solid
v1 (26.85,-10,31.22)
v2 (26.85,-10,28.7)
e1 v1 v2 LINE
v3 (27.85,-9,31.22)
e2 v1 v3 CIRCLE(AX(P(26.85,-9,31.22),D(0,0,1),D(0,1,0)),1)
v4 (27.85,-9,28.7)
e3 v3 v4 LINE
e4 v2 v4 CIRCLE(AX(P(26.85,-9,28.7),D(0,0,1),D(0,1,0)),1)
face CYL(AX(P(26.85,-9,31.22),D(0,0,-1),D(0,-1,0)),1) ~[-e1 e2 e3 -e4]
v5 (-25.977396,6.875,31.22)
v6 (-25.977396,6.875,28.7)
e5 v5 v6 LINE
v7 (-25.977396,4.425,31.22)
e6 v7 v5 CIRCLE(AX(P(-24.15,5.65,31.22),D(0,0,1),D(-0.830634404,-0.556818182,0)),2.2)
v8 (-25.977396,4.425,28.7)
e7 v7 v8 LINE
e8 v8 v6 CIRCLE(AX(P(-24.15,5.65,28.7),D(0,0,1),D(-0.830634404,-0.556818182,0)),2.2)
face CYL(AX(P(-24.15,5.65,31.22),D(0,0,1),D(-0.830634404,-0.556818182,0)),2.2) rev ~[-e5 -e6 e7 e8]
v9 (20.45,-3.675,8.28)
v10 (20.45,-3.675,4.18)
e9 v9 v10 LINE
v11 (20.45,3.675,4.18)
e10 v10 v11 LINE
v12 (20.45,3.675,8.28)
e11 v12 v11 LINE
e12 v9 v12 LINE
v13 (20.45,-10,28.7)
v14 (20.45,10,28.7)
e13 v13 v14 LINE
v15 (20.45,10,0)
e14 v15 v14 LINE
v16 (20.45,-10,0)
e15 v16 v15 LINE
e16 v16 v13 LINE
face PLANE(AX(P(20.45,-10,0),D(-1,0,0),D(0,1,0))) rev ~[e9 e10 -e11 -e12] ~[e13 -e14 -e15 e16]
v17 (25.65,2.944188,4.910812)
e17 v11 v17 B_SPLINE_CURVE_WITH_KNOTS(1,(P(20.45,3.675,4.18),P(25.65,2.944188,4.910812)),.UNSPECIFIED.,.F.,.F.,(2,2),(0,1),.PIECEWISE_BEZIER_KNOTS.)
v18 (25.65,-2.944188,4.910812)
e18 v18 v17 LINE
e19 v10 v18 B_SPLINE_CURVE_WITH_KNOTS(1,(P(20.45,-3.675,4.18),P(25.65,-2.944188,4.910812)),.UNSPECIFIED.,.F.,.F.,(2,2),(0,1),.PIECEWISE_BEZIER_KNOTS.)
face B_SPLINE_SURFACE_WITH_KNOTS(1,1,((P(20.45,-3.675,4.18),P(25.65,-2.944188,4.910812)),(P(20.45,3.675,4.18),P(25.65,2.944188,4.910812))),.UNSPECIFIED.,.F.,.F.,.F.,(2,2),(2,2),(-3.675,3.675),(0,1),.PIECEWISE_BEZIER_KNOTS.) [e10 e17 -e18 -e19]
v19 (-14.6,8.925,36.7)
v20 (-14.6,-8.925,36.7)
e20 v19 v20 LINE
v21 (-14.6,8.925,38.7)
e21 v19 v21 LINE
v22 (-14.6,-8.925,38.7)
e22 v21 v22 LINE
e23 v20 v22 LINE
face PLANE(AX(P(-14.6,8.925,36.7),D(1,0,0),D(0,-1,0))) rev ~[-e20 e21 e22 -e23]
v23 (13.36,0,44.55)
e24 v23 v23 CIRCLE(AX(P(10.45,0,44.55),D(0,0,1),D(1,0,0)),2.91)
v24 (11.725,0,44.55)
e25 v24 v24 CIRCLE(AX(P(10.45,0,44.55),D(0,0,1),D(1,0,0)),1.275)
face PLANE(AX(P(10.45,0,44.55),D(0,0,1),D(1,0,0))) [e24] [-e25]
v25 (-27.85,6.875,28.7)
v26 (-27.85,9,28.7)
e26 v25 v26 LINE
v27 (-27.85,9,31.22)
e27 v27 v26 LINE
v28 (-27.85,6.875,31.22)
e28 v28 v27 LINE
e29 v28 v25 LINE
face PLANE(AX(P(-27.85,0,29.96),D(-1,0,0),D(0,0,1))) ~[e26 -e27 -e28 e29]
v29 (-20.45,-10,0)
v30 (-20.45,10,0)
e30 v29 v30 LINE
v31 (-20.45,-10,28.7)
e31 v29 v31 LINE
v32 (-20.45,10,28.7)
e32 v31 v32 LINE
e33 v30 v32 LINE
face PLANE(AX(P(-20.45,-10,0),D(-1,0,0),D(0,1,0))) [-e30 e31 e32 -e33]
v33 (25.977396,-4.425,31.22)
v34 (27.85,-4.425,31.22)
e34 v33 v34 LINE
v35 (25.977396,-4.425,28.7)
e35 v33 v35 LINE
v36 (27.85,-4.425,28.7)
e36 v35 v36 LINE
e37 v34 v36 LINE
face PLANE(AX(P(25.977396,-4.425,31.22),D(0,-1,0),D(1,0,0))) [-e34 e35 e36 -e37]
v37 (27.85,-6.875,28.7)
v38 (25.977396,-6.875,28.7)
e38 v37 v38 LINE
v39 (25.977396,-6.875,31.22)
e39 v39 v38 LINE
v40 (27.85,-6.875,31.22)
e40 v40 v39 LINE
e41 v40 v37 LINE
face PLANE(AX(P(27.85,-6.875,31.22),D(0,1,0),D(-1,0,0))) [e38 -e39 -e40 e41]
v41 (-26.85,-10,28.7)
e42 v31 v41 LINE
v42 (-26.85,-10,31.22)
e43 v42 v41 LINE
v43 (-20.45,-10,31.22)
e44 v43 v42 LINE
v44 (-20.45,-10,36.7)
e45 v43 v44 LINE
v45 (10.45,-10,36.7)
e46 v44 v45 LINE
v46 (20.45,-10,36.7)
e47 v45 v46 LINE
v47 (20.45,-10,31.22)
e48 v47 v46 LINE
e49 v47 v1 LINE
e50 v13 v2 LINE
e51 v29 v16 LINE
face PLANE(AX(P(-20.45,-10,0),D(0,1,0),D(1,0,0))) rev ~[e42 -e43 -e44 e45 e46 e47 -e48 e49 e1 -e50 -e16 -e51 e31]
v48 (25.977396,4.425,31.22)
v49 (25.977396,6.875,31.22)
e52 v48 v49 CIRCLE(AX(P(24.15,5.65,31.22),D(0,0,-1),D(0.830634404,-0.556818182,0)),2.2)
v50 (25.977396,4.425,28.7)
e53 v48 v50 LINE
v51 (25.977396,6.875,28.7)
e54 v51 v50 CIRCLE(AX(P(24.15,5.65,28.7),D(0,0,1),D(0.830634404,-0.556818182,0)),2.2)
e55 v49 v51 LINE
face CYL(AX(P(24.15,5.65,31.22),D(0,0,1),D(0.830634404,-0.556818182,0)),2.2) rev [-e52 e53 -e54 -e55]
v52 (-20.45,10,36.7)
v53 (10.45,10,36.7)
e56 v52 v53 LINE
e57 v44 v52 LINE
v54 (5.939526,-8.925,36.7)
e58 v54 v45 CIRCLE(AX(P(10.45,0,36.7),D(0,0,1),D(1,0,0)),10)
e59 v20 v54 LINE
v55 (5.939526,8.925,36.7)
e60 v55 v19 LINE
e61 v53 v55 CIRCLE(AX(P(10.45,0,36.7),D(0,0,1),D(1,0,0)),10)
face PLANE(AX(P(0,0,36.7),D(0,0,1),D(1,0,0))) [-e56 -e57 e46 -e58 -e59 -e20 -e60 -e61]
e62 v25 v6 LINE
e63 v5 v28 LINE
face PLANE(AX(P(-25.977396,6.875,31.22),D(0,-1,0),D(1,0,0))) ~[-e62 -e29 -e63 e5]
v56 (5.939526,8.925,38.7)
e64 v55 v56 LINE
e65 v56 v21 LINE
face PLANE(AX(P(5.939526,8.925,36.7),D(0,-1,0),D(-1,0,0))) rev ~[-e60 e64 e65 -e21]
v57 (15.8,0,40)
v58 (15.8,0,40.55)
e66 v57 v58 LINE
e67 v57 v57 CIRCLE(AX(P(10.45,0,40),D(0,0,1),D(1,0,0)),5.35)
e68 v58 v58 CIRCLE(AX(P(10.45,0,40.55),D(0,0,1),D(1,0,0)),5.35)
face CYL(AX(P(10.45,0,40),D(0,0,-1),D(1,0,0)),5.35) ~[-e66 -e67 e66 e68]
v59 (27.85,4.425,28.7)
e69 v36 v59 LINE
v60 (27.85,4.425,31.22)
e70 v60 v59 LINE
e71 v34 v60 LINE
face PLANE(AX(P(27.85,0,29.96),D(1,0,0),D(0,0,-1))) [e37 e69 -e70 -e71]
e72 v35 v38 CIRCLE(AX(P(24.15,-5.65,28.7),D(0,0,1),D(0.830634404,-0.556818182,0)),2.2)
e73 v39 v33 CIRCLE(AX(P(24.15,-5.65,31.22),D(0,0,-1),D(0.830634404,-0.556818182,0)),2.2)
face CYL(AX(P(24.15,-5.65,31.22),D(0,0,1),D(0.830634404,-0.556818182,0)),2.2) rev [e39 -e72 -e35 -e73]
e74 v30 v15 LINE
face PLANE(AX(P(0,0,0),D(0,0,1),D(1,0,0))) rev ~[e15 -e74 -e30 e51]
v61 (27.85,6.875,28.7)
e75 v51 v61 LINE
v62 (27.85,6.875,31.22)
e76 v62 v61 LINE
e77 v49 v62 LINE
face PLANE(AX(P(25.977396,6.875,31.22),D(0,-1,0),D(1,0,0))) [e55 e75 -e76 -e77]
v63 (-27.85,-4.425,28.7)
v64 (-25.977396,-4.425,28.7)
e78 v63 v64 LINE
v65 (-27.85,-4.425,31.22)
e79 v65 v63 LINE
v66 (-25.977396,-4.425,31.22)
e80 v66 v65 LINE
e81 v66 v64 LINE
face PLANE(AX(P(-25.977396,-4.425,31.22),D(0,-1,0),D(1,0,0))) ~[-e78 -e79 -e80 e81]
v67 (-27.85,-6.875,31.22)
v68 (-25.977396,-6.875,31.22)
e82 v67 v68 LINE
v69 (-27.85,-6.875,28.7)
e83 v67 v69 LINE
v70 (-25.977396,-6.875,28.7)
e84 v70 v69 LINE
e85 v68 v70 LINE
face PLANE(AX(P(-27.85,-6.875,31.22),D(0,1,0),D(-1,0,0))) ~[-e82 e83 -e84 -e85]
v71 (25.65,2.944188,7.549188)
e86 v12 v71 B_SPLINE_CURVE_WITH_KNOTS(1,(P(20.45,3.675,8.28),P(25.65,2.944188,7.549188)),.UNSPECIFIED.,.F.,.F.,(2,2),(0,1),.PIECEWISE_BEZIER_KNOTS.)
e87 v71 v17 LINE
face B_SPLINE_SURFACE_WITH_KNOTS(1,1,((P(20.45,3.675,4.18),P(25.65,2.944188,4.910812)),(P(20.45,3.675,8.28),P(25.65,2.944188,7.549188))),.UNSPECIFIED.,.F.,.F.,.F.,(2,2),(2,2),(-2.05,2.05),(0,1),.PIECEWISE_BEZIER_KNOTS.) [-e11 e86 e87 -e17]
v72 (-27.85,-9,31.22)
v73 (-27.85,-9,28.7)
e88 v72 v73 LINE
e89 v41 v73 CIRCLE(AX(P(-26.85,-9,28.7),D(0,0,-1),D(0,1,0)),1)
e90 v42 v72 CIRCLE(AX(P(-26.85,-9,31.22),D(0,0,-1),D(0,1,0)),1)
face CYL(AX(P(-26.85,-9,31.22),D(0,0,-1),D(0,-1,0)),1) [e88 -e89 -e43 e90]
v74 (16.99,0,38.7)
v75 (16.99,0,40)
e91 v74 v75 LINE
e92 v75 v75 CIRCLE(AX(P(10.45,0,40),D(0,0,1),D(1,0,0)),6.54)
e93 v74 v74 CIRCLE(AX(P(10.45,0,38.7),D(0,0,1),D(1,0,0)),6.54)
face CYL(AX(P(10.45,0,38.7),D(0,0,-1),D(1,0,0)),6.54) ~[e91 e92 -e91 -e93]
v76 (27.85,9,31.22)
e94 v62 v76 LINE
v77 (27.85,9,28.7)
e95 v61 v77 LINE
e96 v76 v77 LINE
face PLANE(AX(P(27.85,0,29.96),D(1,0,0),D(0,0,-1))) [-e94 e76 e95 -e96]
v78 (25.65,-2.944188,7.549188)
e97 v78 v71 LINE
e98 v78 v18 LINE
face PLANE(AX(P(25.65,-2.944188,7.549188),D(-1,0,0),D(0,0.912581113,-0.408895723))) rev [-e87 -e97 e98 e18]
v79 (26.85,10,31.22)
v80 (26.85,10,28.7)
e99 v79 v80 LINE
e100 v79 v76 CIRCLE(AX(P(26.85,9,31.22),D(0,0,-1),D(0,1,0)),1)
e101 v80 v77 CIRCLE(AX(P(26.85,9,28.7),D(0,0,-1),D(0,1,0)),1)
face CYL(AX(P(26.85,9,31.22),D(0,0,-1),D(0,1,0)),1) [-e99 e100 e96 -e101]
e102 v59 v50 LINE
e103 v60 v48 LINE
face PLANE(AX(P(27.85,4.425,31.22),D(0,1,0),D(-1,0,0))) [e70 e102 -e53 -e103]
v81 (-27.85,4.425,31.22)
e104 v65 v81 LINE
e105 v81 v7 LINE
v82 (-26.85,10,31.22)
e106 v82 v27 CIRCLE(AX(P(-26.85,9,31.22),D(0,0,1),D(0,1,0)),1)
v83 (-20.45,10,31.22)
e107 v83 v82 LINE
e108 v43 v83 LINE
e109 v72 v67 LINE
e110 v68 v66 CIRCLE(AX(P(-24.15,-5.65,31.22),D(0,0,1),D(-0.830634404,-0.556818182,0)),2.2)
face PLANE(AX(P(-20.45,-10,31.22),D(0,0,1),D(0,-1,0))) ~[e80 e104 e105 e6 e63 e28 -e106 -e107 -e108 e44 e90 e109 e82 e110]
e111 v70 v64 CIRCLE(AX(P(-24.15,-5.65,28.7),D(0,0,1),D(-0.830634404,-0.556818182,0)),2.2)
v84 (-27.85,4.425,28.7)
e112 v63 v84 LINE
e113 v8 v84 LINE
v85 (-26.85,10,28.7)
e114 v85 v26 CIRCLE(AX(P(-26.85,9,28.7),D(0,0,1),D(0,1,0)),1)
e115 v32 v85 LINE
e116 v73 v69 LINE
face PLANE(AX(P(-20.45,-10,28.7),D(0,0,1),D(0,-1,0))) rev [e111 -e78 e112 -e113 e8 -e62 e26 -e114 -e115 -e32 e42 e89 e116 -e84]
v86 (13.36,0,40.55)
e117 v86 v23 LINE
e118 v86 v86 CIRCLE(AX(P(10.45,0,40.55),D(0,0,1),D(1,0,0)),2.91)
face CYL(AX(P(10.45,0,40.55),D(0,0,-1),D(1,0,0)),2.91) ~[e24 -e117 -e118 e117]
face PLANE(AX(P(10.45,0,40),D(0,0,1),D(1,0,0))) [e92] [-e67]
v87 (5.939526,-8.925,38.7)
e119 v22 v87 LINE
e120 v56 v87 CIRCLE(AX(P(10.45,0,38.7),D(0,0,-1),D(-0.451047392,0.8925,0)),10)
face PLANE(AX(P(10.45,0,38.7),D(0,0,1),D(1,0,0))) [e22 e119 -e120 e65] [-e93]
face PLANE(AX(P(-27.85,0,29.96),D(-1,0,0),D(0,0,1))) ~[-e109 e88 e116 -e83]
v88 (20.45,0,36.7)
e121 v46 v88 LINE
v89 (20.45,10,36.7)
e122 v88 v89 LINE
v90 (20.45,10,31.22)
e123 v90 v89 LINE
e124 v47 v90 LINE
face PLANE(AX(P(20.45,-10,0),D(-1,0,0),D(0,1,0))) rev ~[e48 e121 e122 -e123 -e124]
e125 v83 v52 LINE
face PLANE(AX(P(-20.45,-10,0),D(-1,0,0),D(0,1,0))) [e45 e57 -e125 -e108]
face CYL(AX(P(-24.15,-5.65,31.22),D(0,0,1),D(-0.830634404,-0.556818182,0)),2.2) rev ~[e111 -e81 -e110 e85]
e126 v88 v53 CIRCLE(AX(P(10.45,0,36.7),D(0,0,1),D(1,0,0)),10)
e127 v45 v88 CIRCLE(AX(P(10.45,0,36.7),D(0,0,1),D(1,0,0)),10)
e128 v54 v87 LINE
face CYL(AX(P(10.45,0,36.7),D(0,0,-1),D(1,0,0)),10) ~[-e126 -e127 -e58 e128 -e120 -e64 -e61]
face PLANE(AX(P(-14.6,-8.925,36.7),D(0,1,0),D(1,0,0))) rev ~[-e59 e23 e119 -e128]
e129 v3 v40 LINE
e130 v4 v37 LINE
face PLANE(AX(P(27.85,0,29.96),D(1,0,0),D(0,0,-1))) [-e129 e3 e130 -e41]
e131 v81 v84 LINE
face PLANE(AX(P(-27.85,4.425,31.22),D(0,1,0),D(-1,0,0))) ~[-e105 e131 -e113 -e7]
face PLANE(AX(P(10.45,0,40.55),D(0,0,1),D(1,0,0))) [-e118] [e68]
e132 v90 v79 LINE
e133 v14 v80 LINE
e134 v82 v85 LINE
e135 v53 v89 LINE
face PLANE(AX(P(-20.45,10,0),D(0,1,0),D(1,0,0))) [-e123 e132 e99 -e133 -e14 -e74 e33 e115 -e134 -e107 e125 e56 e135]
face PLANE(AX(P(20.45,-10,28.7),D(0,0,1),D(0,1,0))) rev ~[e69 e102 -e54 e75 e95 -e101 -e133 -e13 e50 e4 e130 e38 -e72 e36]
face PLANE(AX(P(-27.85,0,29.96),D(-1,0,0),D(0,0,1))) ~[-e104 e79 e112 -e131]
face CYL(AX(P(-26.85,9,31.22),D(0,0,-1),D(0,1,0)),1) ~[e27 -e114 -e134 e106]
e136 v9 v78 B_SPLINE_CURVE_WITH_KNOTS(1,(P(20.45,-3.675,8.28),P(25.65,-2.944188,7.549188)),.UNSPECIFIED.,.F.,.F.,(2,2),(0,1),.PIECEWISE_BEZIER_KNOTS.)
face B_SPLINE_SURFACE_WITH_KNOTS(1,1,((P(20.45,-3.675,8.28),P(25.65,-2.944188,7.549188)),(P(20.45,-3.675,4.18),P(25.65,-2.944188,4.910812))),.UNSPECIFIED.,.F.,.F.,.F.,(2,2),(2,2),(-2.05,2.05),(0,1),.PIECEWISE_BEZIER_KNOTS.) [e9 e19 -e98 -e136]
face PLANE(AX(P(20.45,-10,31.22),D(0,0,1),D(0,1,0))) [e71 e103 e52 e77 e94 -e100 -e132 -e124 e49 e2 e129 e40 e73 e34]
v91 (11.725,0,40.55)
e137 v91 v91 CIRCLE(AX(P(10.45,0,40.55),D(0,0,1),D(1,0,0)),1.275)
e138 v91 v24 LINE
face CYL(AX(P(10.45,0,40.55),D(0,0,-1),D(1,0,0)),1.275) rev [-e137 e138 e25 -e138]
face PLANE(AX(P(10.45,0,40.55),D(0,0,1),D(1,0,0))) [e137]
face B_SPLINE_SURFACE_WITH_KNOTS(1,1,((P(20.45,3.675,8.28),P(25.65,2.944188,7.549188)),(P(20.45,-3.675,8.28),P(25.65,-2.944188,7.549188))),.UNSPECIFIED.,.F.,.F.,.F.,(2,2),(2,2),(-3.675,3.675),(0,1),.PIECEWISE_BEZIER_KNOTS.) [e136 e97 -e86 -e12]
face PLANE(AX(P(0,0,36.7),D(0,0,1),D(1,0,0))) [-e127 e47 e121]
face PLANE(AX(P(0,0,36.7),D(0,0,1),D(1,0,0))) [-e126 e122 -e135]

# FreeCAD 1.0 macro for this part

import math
import FreeCAD as App
import Part
import Sketcher
Q = App.Units.Quantity


def edges_at(feature, points):
    """Names of the edges that pass closest to the given points."""
    edges = feature.Shape.Edges
    near = lambda p: min(range(len(edges)), key=lambda i: edges[i].distToShape(Part.Vertex(*p))[0])
    return sorted({f"Edge{near(p) + 1}" for p in points})


def add_polygon(sketch, points):
    """Adds a closed chain of lines whose ends are joined by coincident constraints."""
    first, n = sketch.GeometryCount, len(points)
    for a, b in zip(points, points[1:] + points[:1]):
        sketch.addGeometry(Part.LineSegment(App.Vector(*a, 0), App.Vector(*b, 0)), False)
    for i in range(n):
        sketch.addConstraint(Sketcher.Constraint("Coincident", first + i, 2, first + (i + 1) % n, 1))

doc = App.newDocument("Part")
body = doc.addObject("PartDesign::Body", "Body")

# Sketch on XY plane
sketch1 = doc.addObject("Sketcher::SketchObject", "Sketch")
body.addObject(sketch1)
sketch1.AttachmentSupport = (doc.XY_Plane, [""])
sketch1.MapMode = "FlatFace"
add_polygon(sketch1, [(-20.45, 10), (-20.45, -10), (20.45, -10), (20.45, 10)])  # lines 0-3
sketch1.addConstraint([
    Sketcher.Constraint("Vertical", 0),
    Sketcher.Constraint("Horizontal", 1),
    Sketcher.Constraint("Vertical", 2),
    Sketcher.Constraint("Horizontal", 3),
    Sketcher.Constraint("Symmetric", 0, 2, 2, 2, -1, 1),
    Sketcher.Constraint("DistanceY", 0, 2, 0, 1, Q("20 mm")),
    Sketcher.Constraint("DistanceX", 1, 1, 1, 2, Q("40.9 mm")),
])
pad1 = doc.addObject("PartDesign::Pad", "Pad")
body.addObject(pad1)
pad1.Profile = sketch1
pad1.Length = 36.7

# Sketch on XY plane
sketch2 = doc.addObject("Sketcher::SketchObject", "Sketch001")
body.addObject(sketch2)
sketch2.AttachmentSupport = (doc.XY_Plane, [""])
sketch2.MapMode = "FlatFace"
sketch2.AttachmentOffset = App.Placement(App.Vector(0, 0, 36.7), App.Rotation())
sketch2.addGeometry(Part.Circle(App.Vector(10.45, 0, 0), App.Vector(0, 0, 1), 10), False)
sketch2.addConstraint([
    Sketcher.Constraint("PointOnObject", 0, 3, -1),
    Sketcher.Constraint("Diameter", 0, Q("20 mm")),
    Sketcher.Constraint("DistanceX", -1, 1, 0, 3, Q("10.45 mm")),
])
pad2 = doc.addObject("PartDesign::Pad", "Pad001")
body.addObject(pad2)
pad2.Profile = sketch2
pad2.Length = 2

# Sketch on XY plane
sketch3 = doc.addObject("Sketcher::SketchObject", "Sketch002")
body.addObject(sketch3)
sketch3.AttachmentSupport = (doc.XY_Plane, [""])
sketch3.MapMode = "FlatFace"
sketch3.AttachmentOffset = App.Placement(App.Vector(0, 0, 38.7), App.Rotation())
sketch3.addGeometry(Part.Circle(App.Vector(10.45, 0, 0), App.Vector(0, 0, 1), 6.54), False)
sketch3.addConstraint([
    Sketcher.Constraint("PointOnObject", 0, 3, -1),
    Sketcher.Constraint("Diameter", 0, Q("13.08 mm")),
    Sketcher.Constraint("DistanceX", -1, 1, 0, 3, Q("10.45 mm")),
])
pad3 = doc.addObject("PartDesign::Pad", "Pad002")
body.addObject(pad3)
pad3.Profile = sketch3
pad3.Length = 1.3

# Sketch on XY plane
sketch4 = doc.addObject("Sketcher::SketchObject", "Sketch003")
body.addObject(sketch4)
sketch4.AttachmentSupport = (doc.XY_Plane, [""])
sketch4.MapMode = "FlatFace"
sketch4.AttachmentOffset = App.Placement(App.Vector(0, 0, 40), App.Rotation())
sketch4.addGeometry(Part.Circle(App.Vector(10.45, 0, 0), App.Vector(0, 0, 1), 5.35), False)
sketch4.addConstraint([
    Sketcher.Constraint("PointOnObject", 0, 3, -1),
    Sketcher.Constraint("Diameter", 0, Q("10.7 mm")),
    Sketcher.Constraint("DistanceX", -1, 1, 0, 3, Q("10.45 mm")),
])
pad4 = doc.addObject("PartDesign::Pad", "Pad003")
body.addObject(pad4)
pad4.Profile = sketch4
pad4.Length = 0.55

# Sketch on XY plane
sketch5 = doc.addObject("Sketcher::SketchObject", "Sketch004")
body.addObject(sketch5)
sketch5.AttachmentSupport = (doc.XY_Plane, [""])
sketch5.MapMode = "FlatFace"
sketch5.AttachmentOffset = App.Placement(App.Vector(0, 0, 40.55), App.Rotation())
sketch5.addGeometry([
    Part.Circle(App.Vector(10.45, 0, 0), App.Vector(0, 0, 1), 2.91),
    Part.Circle(App.Vector(10.45, 0, 0), App.Vector(0, 0, 1), 1.275),
], False)
sketch5.addConstraint([
    Sketcher.Constraint("Coincident", 1, 3, 0, 3),
    Sketcher.Constraint("PointOnObject", 0, 3, -1),
    Sketcher.Constraint("Diameter", 0, Q("5.82 mm")),
    Sketcher.Constraint("Diameter", 1, Q("2.55 mm")),
    Sketcher.Constraint("DistanceX", -1, 1, 0, 3, Q("10.45 mm")),
])
pad5 = doc.addObject("PartDesign::Pad", "Pad004")
body.addObject(pad5)
pad5.Profile = sketch5
pad5.Length = 4

# Sketch on XY plane
sketch6 = doc.addObject("Sketcher::SketchObject", "Sketch005")
body.addObject(sketch6)
sketch6.AttachmentSupport = (doc.XY_Plane, [""])
sketch6.MapMode = "FlatFace"
sketch6.AttachmentOffset = App.Placement(App.Vector(0, 0, 36.7), App.Rotation())
sketch6.addGeometry([
    Part.LineSegment(App.Vector(5.939526, 8.925, 0), App.Vector(-14.6, 8.925, 0)),
    Part.LineSegment(App.Vector(-14.6, 8.925, 0), App.Vector(-14.6, -8.925, 0)),
    Part.LineSegment(App.Vector(-14.6, -8.925, 0), App.Vector(5.939526, -8.925, 0)),
    Part.ArcOfCircle(Part.Circle(App.Vector(10.45, 0, 0), App.Vector(0, 0, 1), 10), math.radians(116.810903), math.radians(243.189097)),
], False)
sketch6.addConstraint([
    Sketcher.Constraint("Coincident", 0, 2, 1, 1),
    Sketcher.Constraint("Coincident", 1, 2, 2, 1),
    Sketcher.Constraint("Coincident", 2, 2, 3, 2),
    Sketcher.Constraint("Coincident", 3, 1, 0, 1),
    Sketcher.Constraint("Horizontal", 0),
    Sketcher.Constraint("Vertical", 1),
    Sketcher.Constraint("Horizontal", 2),
    Sketcher.Constraint("Symmetric", 2, 2, 3, 1, -1),
    Sketcher.Constraint("Radius", 3, Q("10 mm")),
    Sketcher.Constraint("DistanceY", 1, 2, 1, 1, Q("17.85 mm")),
    Sketcher.Constraint("DistanceX", 0, 2, -1, 1, Q("14.6 mm")),
    Sketcher.Constraint("DistanceX", -1, 1, 3, 3, Q("10.45 mm")),
])
pad6 = doc.addObject("PartDesign::Pad", "Pad005")
body.addObject(pad6)
pad6.Profile = sketch6
pad6.Length = 2

# Sketch on YZ plane
sketch7 = doc.addObject("Sketcher::SketchObject", "Sketch006")
body.addObject(sketch7)
sketch7.AttachmentSupport = (doc.YZ_Plane, [""])
sketch7.MapMode = "FlatFace"
sketch7.AttachmentOffset = App.Placement(App.Vector(0, 0, 20.45), App.Rotation())
add_polygon(sketch7, [(10, 31.22), (-10, 31.22), (-10, 28.7), (10, 28.7)])  # lines 0-3
sketch7.addConstraint([
    Sketcher.Constraint("Horizontal", 0),
    Sketcher.Constraint("Vertical", 1),
    Sketcher.Constraint("Horizontal", 2),
    Sketcher.Constraint("Vertical", 3),
    Sketcher.Constraint("DistanceX", 0, 2, 0, 1, Q("20 mm")),
    Sketcher.Constraint("DistanceX", 0, 2, -1, 1, Q("10 mm")),
    Sketcher.Constraint("DistanceY", 1, 2, 1, 1, Q("2.52 mm")),
    Sketcher.Constraint("DistanceY", -1, 1, 1, 2, Q("28.7 mm")),
])
pad7 = doc.addObject("PartDesign::Pad", "Pad006")
body.addObject(pad7)
pad7.Profile = sketch7
pad7.Length = 7.4

# Sketch on XY plane
sketch8 = doc.addObject("Sketcher::SketchObject", "Sketch007")
body.addObject(sketch8)
sketch8.AttachmentSupport = (doc.XY_Plane, [""])
sketch8.MapMode = "FlatFace"
sketch8.AttachmentOffset = App.Placement(App.Vector(0, 0, 31.22), App.Rotation())
sketch8.addGeometry([
    Part.LineSegment(App.Vector(27.85, 4.425, 0), App.Vector(27.85, 6.875, 0)),  # 0
    Part.LineSegment(App.Vector(27.85, 6.875, 0), App.Vector(25.977396, 6.875, 0)),  # 1
    Part.ArcOfCircle(Part.Circle(App.Vector(24.15, 5.65, 0), App.Vector(0, 0, 1), 2.2), math.radians(33.836038), math.radians(326.163962)),  # 2
    Part.LineSegment(App.Vector(25.977396, 4.425, 0), App.Vector(27.85, 4.425, 0)),  # 3
    Part.LineSegment(App.Vector(27.85, -6.875, 0), App.Vector(27.85, -4.425, 0)),  # 4
    Part.LineSegment(App.Vector(27.85, -4.425, 0), App.Vector(25.977396, -4.425, 0)),  # 5
    Part.ArcOfCircle(Part.Circle(App.Vector(24.15, -5.65, 0), App.Vector(0, 0, 1), 2.2), math.radians(33.836038), math.radians(326.163962)),  # 6
    Part.LineSegment(App.Vector(25.977396, -6.875, 0), App.Vector(27.85, -6.875, 0)),  # 7
], False)
sketch8.addConstraint([
    Sketcher.Constraint("Coincident", 0, 2, 1, 1),
    Sketcher.Constraint("Coincident", 1, 2, 2, 1),
    Sketcher.Constraint("Coincident", 2, 2, 3, 1),
    Sketcher.Constraint("Coincident", 3, 2, 0, 1),
    Sketcher.Constraint("Coincident", 4, 2, 5, 1),
    Sketcher.Constraint("Coincident", 5, 2, 6, 1),
    Sketcher.Constraint("Coincident", 6, 2, 7, 1),
    Sketcher.Constraint("Coincident", 7, 2, 4, 1),
    Sketcher.Constraint("Vertical", 0),
    Sketcher.Constraint("Horizontal", 1),
    Sketcher.Constraint("Horizontal", 3),
    Sketcher.Constraint("Vertical", 4),
    Sketcher.Constraint("Horizontal", 5),
    Sketcher.Constraint("Horizontal", 7),
    Sketcher.Constraint("Equal", 2, 6),
    Sketcher.Constraint("Symmetric", 2, 3, 6, 3, -1),
    Sketcher.Constraint("Symmetric", 3, 2, 4, 2, -1),
    Sketcher.Constraint("Vertical", 1, 2, 2, 2),
    Sketcher.Constraint("Vertical", 5, 2, 6, 2),
    Sketcher.Constraint("Radius", 2, Q("2.2 mm")),
    Sketcher.Constraint("DistanceY", 0, 1, 0, 2, Q("2.45 mm")),
    Sketcher.Constraint("DistanceY", 6, 3, 2, 3, Q("11.3 mm")),
    Sketcher.Constraint("DistanceX", 2, 3, 0, 2, Q("3.7 mm")),
    Sketcher.Constraint("DistanceX", -1, 1, 2, 3, Q("24.15 mm")),
])
pocket1 = doc.addObject("PartDesign::Pocket", "Pocket")
body.addObject(pocket1)
pocket1.Profile = sketch8
pocket1.Length = 3.4
doc.recompute()

fillet = doc.addObject("PartDesign::Fillet", "Fillet")
body.addObject(fillet)
fillet.Base = (pocket1, edges_at(pocket1, [(27.85, -10, 29.96), (27.85, 10, 29.96)]))
fillet.Radius = 1
doc.recompute()

mirrored = doc.addObject("PartDesign::Mirrored", "Mirrored")
body.addObject(mirrored)
mirrored.Originals = [pad7, pocket1]
mirrored.MirrorPlane = (doc.YZ_Plane, [""])
body.Tip = mirrored
doc.recompute()

fillet2 = doc.addObject("PartDesign::Fillet", "Fillet001")
body.addObject(fillet2)
fillet2.Base = (mirrored, edges_at(mirrored, [(-27.85, -10, 29.96), (-27.85, 10, 29.96)]))
fillet2.Radius = 1

# Sketch on YZ plane
sketch9 = doc.addObject("Sketcher::SketchObject", "Sketch008")
body.addObject(sketch9)
sketch9.AttachmentSupport = (doc.YZ_Plane, [""])
sketch9.MapMode = "FlatFace"
sketch9.AttachmentOffset = App.Placement(App.Vector(0, 0, 20.45), App.Rotation())
add_polygon(sketch9, [(3.675, 8.28), (-3.675, 8.28), (-3.675, 4.18), (3.675, 4.18)])  # lines 0-3
sketch9.addConstraint([
    Sketcher.Constraint("Horizontal", 0),
    Sketcher.Constraint("Vertical", 1),
    Sketcher.Constraint("Horizontal", 2),
    Sketcher.Constraint("Vertical", 3),
    Sketcher.Constraint("DistanceY", 1, 2, 1, 1, Q("4.1 mm")),
    Sketcher.Constraint("DistanceX", 0, 2, 0, 1, Q("7.35 mm")),
    Sketcher.Constraint("DistanceY", -1, 1, 0, 2, Q("8.28 mm")),
    Sketcher.Constraint("DistanceX", 0, 2, -1, 1, Q("3.675 mm")),
])
pad8 = doc.addObject("PartDesign::Pad", "Pad007")
body.addObject(pad8)
pad8.Profile = sketch9
pad8.Length = 5.2
pad8.TaperAngle = -8

doc.recompute()
